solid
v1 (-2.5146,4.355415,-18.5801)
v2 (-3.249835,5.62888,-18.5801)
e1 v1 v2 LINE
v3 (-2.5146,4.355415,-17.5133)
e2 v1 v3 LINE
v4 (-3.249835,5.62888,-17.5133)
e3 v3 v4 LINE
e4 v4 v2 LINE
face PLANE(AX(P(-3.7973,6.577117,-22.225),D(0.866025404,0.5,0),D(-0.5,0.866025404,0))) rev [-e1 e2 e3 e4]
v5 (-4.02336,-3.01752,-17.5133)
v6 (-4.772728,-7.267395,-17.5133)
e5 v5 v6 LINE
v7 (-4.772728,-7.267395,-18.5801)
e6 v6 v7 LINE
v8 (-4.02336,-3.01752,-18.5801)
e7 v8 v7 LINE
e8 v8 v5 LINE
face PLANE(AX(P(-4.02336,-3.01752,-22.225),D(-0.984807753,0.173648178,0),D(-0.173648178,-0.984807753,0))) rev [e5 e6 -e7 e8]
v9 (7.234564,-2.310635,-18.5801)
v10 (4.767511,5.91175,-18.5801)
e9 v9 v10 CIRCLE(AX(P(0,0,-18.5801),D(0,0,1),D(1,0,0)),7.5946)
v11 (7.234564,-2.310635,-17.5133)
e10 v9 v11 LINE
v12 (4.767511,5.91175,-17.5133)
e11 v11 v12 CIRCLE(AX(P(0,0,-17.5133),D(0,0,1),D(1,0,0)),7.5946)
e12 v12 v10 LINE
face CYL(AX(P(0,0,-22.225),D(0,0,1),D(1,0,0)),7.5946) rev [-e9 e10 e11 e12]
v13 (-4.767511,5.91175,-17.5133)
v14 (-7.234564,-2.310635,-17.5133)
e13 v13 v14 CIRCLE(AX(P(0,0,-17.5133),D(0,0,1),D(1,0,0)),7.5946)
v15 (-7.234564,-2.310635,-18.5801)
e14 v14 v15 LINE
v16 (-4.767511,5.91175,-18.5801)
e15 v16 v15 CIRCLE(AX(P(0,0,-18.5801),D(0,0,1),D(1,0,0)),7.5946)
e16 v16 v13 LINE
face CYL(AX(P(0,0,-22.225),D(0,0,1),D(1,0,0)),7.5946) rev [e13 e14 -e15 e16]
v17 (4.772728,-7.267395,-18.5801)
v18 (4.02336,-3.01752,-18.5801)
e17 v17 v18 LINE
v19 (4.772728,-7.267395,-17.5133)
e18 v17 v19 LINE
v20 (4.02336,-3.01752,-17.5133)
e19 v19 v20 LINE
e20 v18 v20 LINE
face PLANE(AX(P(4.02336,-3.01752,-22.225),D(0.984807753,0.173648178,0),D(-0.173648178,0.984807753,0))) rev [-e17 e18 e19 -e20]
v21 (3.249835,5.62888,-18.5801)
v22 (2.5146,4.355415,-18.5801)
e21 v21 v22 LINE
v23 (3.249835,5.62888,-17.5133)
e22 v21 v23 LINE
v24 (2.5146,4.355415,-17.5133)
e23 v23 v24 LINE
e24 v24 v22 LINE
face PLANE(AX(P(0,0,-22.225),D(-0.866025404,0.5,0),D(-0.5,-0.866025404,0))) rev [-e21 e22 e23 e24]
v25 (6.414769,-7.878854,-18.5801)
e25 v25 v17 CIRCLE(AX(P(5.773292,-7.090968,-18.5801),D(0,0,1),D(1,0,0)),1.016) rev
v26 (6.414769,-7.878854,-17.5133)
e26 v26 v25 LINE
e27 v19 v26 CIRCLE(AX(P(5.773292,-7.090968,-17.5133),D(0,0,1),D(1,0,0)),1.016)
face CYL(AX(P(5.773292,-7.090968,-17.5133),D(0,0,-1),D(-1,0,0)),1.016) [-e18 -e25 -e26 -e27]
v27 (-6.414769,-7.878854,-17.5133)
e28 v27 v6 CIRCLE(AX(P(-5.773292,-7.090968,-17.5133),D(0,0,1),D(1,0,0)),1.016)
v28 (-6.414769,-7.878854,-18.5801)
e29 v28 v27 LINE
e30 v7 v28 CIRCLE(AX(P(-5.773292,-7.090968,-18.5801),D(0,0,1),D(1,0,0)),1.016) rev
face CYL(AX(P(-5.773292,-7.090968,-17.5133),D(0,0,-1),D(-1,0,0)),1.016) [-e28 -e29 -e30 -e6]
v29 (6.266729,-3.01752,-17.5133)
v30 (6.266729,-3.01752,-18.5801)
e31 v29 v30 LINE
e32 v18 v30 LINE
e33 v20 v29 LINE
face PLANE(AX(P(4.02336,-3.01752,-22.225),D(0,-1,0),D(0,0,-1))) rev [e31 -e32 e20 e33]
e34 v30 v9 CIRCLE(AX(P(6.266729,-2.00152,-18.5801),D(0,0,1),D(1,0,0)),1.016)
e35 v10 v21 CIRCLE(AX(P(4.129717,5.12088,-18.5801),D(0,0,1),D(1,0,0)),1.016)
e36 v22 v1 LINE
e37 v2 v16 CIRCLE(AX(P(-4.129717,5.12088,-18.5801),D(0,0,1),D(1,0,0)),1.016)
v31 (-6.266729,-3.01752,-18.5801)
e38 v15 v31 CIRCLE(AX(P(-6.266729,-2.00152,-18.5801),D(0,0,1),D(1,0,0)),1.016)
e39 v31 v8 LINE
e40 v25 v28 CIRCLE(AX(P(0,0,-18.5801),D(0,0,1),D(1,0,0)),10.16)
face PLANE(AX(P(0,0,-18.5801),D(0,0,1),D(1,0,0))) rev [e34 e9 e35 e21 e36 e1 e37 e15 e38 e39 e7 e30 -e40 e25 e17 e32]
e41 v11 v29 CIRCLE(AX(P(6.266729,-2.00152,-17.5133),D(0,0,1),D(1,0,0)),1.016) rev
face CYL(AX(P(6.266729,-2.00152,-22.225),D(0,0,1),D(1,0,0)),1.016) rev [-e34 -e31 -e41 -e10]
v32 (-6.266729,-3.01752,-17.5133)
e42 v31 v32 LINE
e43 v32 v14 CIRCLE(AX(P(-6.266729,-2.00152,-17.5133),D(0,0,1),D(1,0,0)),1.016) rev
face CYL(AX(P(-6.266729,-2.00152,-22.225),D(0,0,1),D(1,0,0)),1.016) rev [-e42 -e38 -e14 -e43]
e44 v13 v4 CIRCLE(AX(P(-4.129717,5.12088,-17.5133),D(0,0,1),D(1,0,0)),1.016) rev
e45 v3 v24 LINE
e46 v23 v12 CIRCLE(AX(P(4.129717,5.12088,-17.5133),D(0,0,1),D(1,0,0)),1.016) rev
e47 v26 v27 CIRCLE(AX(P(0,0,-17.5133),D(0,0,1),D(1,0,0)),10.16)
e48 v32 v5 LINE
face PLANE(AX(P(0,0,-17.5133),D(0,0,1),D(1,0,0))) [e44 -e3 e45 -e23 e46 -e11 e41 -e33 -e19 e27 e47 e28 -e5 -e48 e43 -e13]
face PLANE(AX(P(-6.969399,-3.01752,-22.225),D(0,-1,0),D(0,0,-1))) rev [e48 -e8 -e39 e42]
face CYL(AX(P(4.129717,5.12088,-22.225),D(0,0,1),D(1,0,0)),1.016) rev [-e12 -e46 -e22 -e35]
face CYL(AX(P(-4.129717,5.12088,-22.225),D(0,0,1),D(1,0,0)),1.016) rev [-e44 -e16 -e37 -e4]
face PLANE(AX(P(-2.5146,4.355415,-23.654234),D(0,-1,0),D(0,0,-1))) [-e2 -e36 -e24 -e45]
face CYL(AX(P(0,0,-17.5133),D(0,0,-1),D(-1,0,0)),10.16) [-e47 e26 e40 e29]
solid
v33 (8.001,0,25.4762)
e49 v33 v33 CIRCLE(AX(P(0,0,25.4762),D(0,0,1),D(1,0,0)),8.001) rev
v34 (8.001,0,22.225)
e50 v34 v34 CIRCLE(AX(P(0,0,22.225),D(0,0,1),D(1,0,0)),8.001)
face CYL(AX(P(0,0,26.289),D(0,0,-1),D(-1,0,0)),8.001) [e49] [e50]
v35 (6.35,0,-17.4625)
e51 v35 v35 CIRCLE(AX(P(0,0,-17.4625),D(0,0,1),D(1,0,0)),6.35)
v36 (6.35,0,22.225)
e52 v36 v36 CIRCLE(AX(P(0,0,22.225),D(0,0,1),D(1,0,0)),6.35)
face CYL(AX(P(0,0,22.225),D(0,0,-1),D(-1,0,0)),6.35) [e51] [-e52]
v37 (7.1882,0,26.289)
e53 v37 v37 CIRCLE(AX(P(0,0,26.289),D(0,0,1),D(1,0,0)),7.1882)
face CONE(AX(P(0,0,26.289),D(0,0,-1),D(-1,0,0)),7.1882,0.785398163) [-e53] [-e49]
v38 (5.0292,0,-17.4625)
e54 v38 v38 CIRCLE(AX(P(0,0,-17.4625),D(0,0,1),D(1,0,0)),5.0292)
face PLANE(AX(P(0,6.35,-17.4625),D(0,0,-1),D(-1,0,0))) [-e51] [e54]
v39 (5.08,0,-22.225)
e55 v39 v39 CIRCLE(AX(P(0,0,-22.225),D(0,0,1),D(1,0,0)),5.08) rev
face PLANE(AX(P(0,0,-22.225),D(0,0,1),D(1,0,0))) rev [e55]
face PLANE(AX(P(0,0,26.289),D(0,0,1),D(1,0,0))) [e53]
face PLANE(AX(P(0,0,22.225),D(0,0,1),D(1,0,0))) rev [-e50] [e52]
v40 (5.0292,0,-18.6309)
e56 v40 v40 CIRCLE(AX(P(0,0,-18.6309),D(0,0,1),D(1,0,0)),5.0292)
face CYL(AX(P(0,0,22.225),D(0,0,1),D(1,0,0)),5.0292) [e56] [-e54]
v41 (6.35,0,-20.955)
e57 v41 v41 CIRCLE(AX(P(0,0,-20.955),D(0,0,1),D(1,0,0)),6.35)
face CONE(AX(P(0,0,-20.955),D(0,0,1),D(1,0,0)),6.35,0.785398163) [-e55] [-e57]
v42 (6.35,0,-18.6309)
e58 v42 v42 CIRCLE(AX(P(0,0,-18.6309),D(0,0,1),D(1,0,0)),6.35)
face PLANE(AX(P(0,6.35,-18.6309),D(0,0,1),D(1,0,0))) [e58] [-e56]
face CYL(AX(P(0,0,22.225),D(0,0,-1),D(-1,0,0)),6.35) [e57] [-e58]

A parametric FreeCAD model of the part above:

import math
import FreeCAD as App
import Part
import Sketcher
from FreeCAD import Vector
Q = App.Units.Quantity


def edges_at(feature, points):
    """Names of the edges that pass closest to the given points."""
    edges = feature.Shape.Edges
    near = lambda p: min(range(len(edges)), key=lambda i: edges[i].distToShape(Part.Vertex(*p))[0])
    return sorted({f"Edge{near(p) + 1}" for p in points})


def add_polygon(sketch, points):
    """Adds a closed chain of lines whose ends are joined by coincident constraints."""
    first, n = sketch.GeometryCount, len(points)
    for a, b in zip(points, points[1:] + points[:1]):
        sketch.addGeometry(Part.LineSegment(App.Vector(*a, 0), App.Vector(*b, 0)), False)
    for i in range(n):
        sketch.addConstraint(Sketcher.Constraint("Coincident", first + i, 2, first + (i + 1) % n, 1))

doc = App.newDocument("Part")
body = doc.addObject("PartDesign::Body", "Body")

# Sketch on XY plane
sketch1 = doc.addObject("Sketcher::SketchObject", "Sketch")
body.addObject(sketch1)
sketch1.AttachmentSupport = (doc.XY_Plane, [""])
sketch1.MapMode = "FlatFace"
sketch1.addGeometry(Part.Circle(Vector(0, 0, 0), Vector(0, 0, 1), 6), False)
sketch1.addConstraint(Sketcher.Constraint("Coincident", 0, 3, -1, 1))
sketch1.addConstraint(Sketcher.Constraint("Diameter", 0, Q("0.5 in")))
pad1 = doc.addObject("PartDesign::Pad", "Pad")
body.addObject(pad1)
pad1.Profile = sketch1
pad1.Length = Q("1.75 in")
pad1.Midplane = True

# Sketch on YZ plane
sketch2 = doc.addObject("Sketcher::SketchObject", "Sketch001")
body.addObject(sketch2)
sketch2.AttachmentSupport = (doc.YZ_Plane, [""])
sketch2.MapMode = "FlatFace"
add_polygon(sketch2, [(6.3, -17.5), (5, -17.5), (5, -18.6), (6.3, -18.6)])  # lines 0-3
sketch2.addConstraint(Sketcher.Constraint("Horizontal", 0))
sketch2.addConstraint(Sketcher.Constraint("Vertical", 1))
sketch2.addConstraint(Sketcher.Constraint("Horizontal", 2))
sketch2.addConstraint(Sketcher.Constraint("Vertical", 3))
sketch2.addConstraint(Sketcher.Constraint("DistanceX", 0, 2, 0, 1, Q("0.052 in")))
sketch2.addConstraint(Sketcher.Constraint("DistanceY", 1, 2, 1, 1, Q("0.046 in")))
sketch2.addConstraint(Sketcher.Constraint("DistanceX", -1, 1, 2, 2, Q("0.25 in")))
sketch2.addConstraint(Sketcher.Constraint("DistanceY", 0, 2, -1, 1, Q("0.6875 in")))
groove = doc.addObject("PartDesign::Groove", "Groove")
body.addObject(groove)
groove.Profile = sketch2
groove.ReferenceAxis = (sketch2, ["V_Axis"])
groove.Angle = 360

# Sketch on XY plane
sketch3 = doc.addObject("Sketcher::SketchObject", "Sketch002")
body.addObject(sketch3)
sketch3.AttachmentSupport = (doc.XY_Plane, [""])
sketch3.MapMode = "FlatFace"
sketch3.AttachmentOffset = App.Placement(Vector(0, 0, 0.875 * 25.4), App.Rotation())
sketch3.addGeometry(Part.Circle(Vector(0, 0, 0), Vector(0, 0, 1), 8), False)
sketch3.addConstraint(Sketcher.Constraint("Coincident", 0, 3, -1, 1))
sketch3.addConstraint(Sketcher.Constraint("Diameter", 0, Q("0.63 in")))
pad2 = doc.addObject("PartDesign::Pad", "Pad001")
body.addObject(pad2)
pad2.Profile = sketch3
pad2.Length = Q("0.16 in")
doc.recompute()

chamfer = doc.addObject("PartDesign::Chamfer", "Chamfer")
body.addObject(chamfer)
chamfer.Base = (pad2, edges_at(pad2, [(-8.001, 0, 26.289)]))
chamfer.Size = Q("0.032 in")
doc.recompute()

chamfer2 = doc.addObject("PartDesign::Chamfer", "Chamfer001")
body.addObject(chamfer2)
chamfer2.Base = (chamfer, edges_at(chamfer, [(-6.35, 0, -22.225)]))
chamfer2.Size = Q("0.05 in")
body2 = doc.addObject("PartDesign::Body", "Body001")

# Sketch on XY plane
sketch4 = doc.addObject("Sketcher::SketchObject", "Sketch003")
body2.addObject(sketch4)
sketch4.AttachmentSupport = (doc.getObject("XY_Plane001"), [""])
sketch4.MapMode = "FlatFace"
sketch4.AttachmentOffset = App.Placement(Vector(0, 0, -0.7105 * 25.4), App.Rotation())
sketch4.addGeometry(Part.Circle(Vector(0, 0, 0), Vector(0, 0, 1), 10), False)
sketch4.addGeometry(Part.Circle(Vector(0, 0, 0), Vector(0, 0, 1), 5), False)
sketch4.addConstraint(Sketcher.Constraint("Coincident", 0, 3, -1, 1))
sketch4.addConstraint(Sketcher.Constraint("Coincident", 1, 3, -1, 1))
sketch4.addConstraint(Sketcher.Constraint("Diameter", 0, Q("0.8 in")))
sketch4.addConstraint(Sketcher.Constraint("Diameter", 1, Q("0.396 in")))
pad3 = doc.addObject("PartDesign::Pad", "Pad002")
body2.addObject(pad3)
pad3.Profile = sketch4
pad3.Length = Q("0.042 in")
pad3.Midplane = True

# Sketch on XY plane
sketch5 = doc.addObject("Sketcher::SketchObject", "Sketch004")
body2.addObject(sketch5)
sketch5.AttachmentSupport = (doc.getObject("XY_Plane001"), [""])
sketch5.MapMode = "FlatFace"
sketch5.addGeometry(Part.LineSegment(Vector(0, 0, 0), Vector(-3.8, 6.6, 0)), False)
sketch5.addGeometry(Part.ArcOfCircle(Part.Circle(Vector(0, 0, 0), Vector(0, 0, 1), 7.6), math.radians(120), math.radians(203)), False)
sketch5.addGeometry(Part.LineSegment(Vector(-7, -3, 0), Vector(-4, -3, 0)), False)
sketch5.addGeometry(Part.LineSegment(Vector(-4, -3, 0), Vector(-5, -8.8, 0)), False)
sketch5.addGeometry(Part.ArcOfCircle(Part.Circle(Vector(0, 0, 0), Vector(0, 0, 1), 10.2), math.radians(-120), math.radians(-60)), False)
sketch5.addGeometry(Part.LineSegment(Vector(5, -8.8, 0), Vector(4, -3, 0)), False)
sketch5.addGeometry(Part.LineSegment(Vector(4, -3, 0), Vector(7, -3, 0)), False)
sketch5.addGeometry(Part.ArcOfCircle(Part.Circle(Vector(0, 0, 0), Vector(0, 0, 1), 7.6), math.radians(-23), math.radians(60)), False)
sketch5.addGeometry(Part.LineSegment(Vector(3.8, 6.6, 0), Vector(0, 0, 0)), False)
sketch5.addConstraint(Sketcher.Constraint("Coincident", 0, 2, 1, 1))
sketch5.addConstraint(Sketcher.Constraint("Coincident", 1, 2, 2, 1))
sketch5.addConstraint(Sketcher.Constraint("Coincident", 2, 2, 3, 1))
sketch5.addConstraint(Sketcher.Constraint("Coincident", 3, 2, 4, 1))
sketch5.addConstraint(Sketcher.Constraint("Coincident", 4, 2, 5, 1))
sketch5.addConstraint(Sketcher.Constraint("Coincident", 5, 2, 6, 1))
sketch5.addConstraint(Sketcher.Constraint("Coincident", 6, 2, 7, 1))
sketch5.addConstraint(Sketcher.Constraint("Coincident", 7, 2, 8, 1))
sketch5.addConstraint(Sketcher.Constraint("Coincident", 8, 2, 0, 1))
sketch5.addConstraint(Sketcher.Constraint("Horizontal", 2))
sketch5.addConstraint(Sketcher.Constraint("Horizontal", 6))
sketch5.addConstraint(Sketcher.Constraint("Coincident", 1, 3, -1, 1))
sketch5.addConstraint(Sketcher.Constraint("Coincident", 4, 3, -1, 1))
sketch5.addConstraint(Sketcher.Constraint("Coincident", 7, 3, -1, 1))
sketch5.addConstraint(Sketcher.Constraint("Coincident", 8, 2, -1, 1))
sketch5.addConstraint(Sketcher.Constraint("Equal", 1, 7))
sketch5.addConstraint(Sketcher.Constraint("Symmetric", 2, 2, 5, 2, -2))
sketch5.addConstraint(Sketcher.Constraint("Horizontal", 3, 2, 4, 2))
sketch5.addConstraint(Sketcher.Constraint("Horizontal", 0, 2, 7, 2))
sketch5.addConstraint(Sketcher.Constraint("Radius", 4, Q("0.4 in")))
sketch5.addConstraint(Sketcher.Constraint("Angle", 0, Q("120 deg")))
sketch5.addConstraint(Sketcher.Constraint("Angle", 3, Q("-100 deg")))
sketch5.addConstraint(Sketcher.Constraint("Radius", 1, Q("0.299 in")))
sketch5.addConstraint(Sketcher.Constraint("DistanceY", 1, 2, -1, 1, Q("0.1188 in")))
sketch5.addConstraint(Sketcher.Constraint("DistanceX", 2, 2, -1, 1, Q("0.1584 in")))
pocket1 = doc.addObject("PartDesign::Pocket", "Pocket")
body2.addObject(pocket1)
pocket1.Profile = sketch5
pocket1.Type = "ThroughAll"

# Sketch on XY plane
sketch6 = doc.addObject("Sketcher::SketchObject", "Sketch005")
body2.addObject(sketch6)
sketch6.AttachmentSupport = (doc.getObject("XY_Plane001"), [""])
sketch6.MapMode = "FlatFace"
sketch6.AttachmentOffset = App.Placement(Vector(0, 0, -0.6895 * 25.4), App.Rotation())
sketch6.addGeometry(Part.LineSegment(Vector(-3, 4, 0), Vector(3, 4, 0)), False)
sketch6.addGeometry(Part.ArcOfCircle(Part.Circle(Vector(0, 0, 0), Vector(0, 0, 1), 5), math.radians(60), math.radians(120)), False)
sketch6.addConstraint(Sketcher.Constraint("Coincident", 0, 1, 1, 2))
sketch6.addConstraint(Sketcher.Constraint("Coincident", 1, 1, 0, 2))
sketch6.addConstraint(Sketcher.Constraint("Horizontal", 0))
sketch6.addConstraint(Sketcher.Constraint("Coincident", 1, 3, -1, 1))
sketch6.addConstraint(Sketcher.Constraint("Radius", 1, Q("0.198 in")))
sketch6.addConstraint(Sketcher.Constraint("DistanceX", 0, 1, 0, 2, Q("0.198 in")))
pad4 = doc.addObject("PartDesign::Pad", "Pad003")
body2.addObject(pad4)
pad4.Profile = sketch6
pad4.Length = Q("0.042 in")
pad4.Reversed = True
doc.recompute()

fillet = doc.addObject("PartDesign::Fillet", "Fillet")
body2.addObject(fillet)
fillet.Base = (pad4, edges_at(pad4, [
    (3.797, 6.577, -18.047),
    (5.046, -8.818, -18.047),
    (-6.969, -3.018, -18.047),
    (6.969, -3.018, -18.047),
    (-5.046, -8.818, -18.047),
    (-3.797, 6.577, -18.047),
]))
fillet.Radius = Q("0.04 in")

doc.recompute()
